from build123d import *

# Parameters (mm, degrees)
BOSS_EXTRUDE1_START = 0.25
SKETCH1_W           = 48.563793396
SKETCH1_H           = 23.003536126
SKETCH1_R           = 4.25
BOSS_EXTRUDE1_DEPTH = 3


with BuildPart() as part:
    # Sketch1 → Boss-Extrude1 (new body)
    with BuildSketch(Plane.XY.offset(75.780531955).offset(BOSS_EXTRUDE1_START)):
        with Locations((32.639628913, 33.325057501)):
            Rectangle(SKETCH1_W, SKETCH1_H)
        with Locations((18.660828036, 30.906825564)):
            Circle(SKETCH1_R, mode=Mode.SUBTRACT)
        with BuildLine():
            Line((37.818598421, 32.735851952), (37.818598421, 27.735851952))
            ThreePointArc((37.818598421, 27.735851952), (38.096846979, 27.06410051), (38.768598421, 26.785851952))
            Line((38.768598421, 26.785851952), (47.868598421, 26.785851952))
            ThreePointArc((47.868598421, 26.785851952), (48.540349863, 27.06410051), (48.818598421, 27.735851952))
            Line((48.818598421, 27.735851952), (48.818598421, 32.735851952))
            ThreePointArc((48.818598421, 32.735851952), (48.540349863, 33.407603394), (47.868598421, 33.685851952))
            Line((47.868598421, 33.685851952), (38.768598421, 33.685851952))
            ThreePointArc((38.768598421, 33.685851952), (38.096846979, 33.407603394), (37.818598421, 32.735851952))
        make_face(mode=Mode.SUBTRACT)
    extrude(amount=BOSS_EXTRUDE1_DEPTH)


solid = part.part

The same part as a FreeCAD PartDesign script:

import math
import FreeCAD as App
import Part
import Sketcher
Q = App.Units.Quantity

doc = App.newDocument("Part")
body = doc.addObject("PartDesign::Body", "Body")

# Sketch on XY plane
sketch1 = doc.addObject("Sketcher::SketchObject", "Sketch")
body.addObject(sketch1)
sketch1.AttachmentSupport = (doc.XY_Plane, [""])
sketch1.MapMode = "FlatFace"
sketch1.AttachmentOffset = App.Placement(App.Vector(0, 0, 76.030532), App.Rotation())
sketch1.addGeometry([
    Part.LineSegment(App.Vector(8.4, 44.8, 0), App.Vector(8.4, 21.8, 0)),  # 0
    Part.LineSegment(App.Vector(8.4, 21.8, 0), App.Vector(56.9, 21.8, 0)),  # 1
    Part.LineSegment(App.Vector(56.9, 21.8, 0), App.Vector(56.9, 44.8, 0)),  # 2
    Part.LineSegment(App.Vector(56.9, 44.8, 0), App.Vector(8.4, 44.8, 0)),  # 3
    Part.LineSegment(App.Vector(37.8, 27.7, 0), App.Vector(37.8, 32.7, 0)),  # 4
    Part.ArcOfCircle(Part.Circle(App.Vector(38.8, 32.7, 0), App.Vector(0, 0, 1), 0.9), math.radians(90), math.radians(180)),  # 5
    Part.LineSegment(App.Vector(38.8, 33.7, 0), App.Vector(47.9, 33.7, 0)),  # 6
    Part.ArcOfCircle(Part.Circle(App.Vector(47.9, 32.7, 0), App.Vector(0, 0, 1), 0.9), math.radians(0), math.radians(90)),  # 7
    Part.LineSegment(App.Vector(48.8, 32.7, 0), App.Vector(48.8, 27.7, 0)),  # 8
    Part.ArcOfCircle(Part.Circle(App.Vector(47.9, 27.7, 0), App.Vector(0, 0, 1), 0.9), math.radians(-90), math.radians(0)),  # 9
    Part.LineSegment(App.Vector(47.9, 26.8, 0), App.Vector(38.8, 26.8, 0)),  # 10
    Part.ArcOfCircle(Part.Circle(App.Vector(38.8, 27.7, 0), App.Vector(0, 0, 1), 0.9), math.radians(180), math.radians(270)),  # 11
    Part.Circle(App.Vector(18.7, 30.9, 0), App.Vector(0, 0, 1), 4.2),  # 12
], False)
sketch1.addConstraint([
    Sketcher.Constraint("Coincident", 0, 2, 1, 1),
    Sketcher.Constraint("Coincident", 1, 2, 2, 1),
    Sketcher.Constraint("Coincident", 2, 2, 3, 1),
    Sketcher.Constraint("Coincident", 3, 2, 0, 1),
    Sketcher.Constraint("Tangent", 4, 2, 5, 2),
    Sketcher.Constraint("Tangent", 5, 1, 6, 1),
    Sketcher.Constraint("Tangent", 6, 2, 7, 2),
    Sketcher.Constraint("Tangent", 7, 1, 8, 1),
    Sketcher.Constraint("Tangent", 8, 2, 9, 2),
    Sketcher.Constraint("Tangent", 9, 1, 10, 1),
    Sketcher.Constraint("Tangent", 10, 2, 11, 2),
    Sketcher.Constraint("Tangent", 11, 1, 4, 1),
    Sketcher.Constraint("Vertical", 0),
    Sketcher.Constraint("Horizontal", 1),
    Sketcher.Constraint("Vertical", 2),
    Sketcher.Constraint("Horizontal", 3),
    Sketcher.Constraint("Vertical", 4),
    Sketcher.Constraint("Horizontal", 6),
    Sketcher.Constraint("Vertical", 8),
    Sketcher.Constraint("Horizontal", 10),
    Sketcher.Constraint("Equal", 5, 7),
    Sketcher.Constraint("Equal", 7, 9),
    Sketcher.Constraint("Equal", 9, 11),
    Sketcher.Constraint("Diameter", 12, Q("8.5 mm")),
    Sketcher.Constraint("DistanceY", 4, 1, 4, 2, Q("5 mm")),
    Sketcher.Constraint("Radius", 5, Q("0.95 mm")),
    Sketcher.Constraint("DistanceX", 6, 1, 6, 2, Q("9.1 mm")),
    Sketcher.Constraint("DistanceY", 12, 3, 3, 2, Q("13.92 mm")),
    Sketcher.Constraint("DistanceX", -1, 1, 5, 3, Q("38.768598 mm")),
    Sketcher.Constraint("DistanceX", 1, 1, 1, 2, Q("48.563793 mm")),
    Sketcher.Constraint("DistanceY", 0, 2, 0, 1, Q("23.003536 mm")),
    Sketcher.Constraint("DistanceY", -1, 1, 5, 3, Q("32.735852 mm")),
    Sketcher.Constraint("DistanceX", -1, 1, 12, 3, Q("18.660828 mm")),
    Sketcher.Constraint("DistanceY", -1, 1, 0, 2, Q("21.823289 mm")),
    Sketcher.Constraint("DistanceX", -1, 1, 0, 2, Q("8.357732 mm")),
])
pad1 = doc.addObject("PartDesign::Pad", "Pad")
body.addObject(pad1)
pad1.Profile = sketch1
pad1.Length = 3

doc.recompute()
